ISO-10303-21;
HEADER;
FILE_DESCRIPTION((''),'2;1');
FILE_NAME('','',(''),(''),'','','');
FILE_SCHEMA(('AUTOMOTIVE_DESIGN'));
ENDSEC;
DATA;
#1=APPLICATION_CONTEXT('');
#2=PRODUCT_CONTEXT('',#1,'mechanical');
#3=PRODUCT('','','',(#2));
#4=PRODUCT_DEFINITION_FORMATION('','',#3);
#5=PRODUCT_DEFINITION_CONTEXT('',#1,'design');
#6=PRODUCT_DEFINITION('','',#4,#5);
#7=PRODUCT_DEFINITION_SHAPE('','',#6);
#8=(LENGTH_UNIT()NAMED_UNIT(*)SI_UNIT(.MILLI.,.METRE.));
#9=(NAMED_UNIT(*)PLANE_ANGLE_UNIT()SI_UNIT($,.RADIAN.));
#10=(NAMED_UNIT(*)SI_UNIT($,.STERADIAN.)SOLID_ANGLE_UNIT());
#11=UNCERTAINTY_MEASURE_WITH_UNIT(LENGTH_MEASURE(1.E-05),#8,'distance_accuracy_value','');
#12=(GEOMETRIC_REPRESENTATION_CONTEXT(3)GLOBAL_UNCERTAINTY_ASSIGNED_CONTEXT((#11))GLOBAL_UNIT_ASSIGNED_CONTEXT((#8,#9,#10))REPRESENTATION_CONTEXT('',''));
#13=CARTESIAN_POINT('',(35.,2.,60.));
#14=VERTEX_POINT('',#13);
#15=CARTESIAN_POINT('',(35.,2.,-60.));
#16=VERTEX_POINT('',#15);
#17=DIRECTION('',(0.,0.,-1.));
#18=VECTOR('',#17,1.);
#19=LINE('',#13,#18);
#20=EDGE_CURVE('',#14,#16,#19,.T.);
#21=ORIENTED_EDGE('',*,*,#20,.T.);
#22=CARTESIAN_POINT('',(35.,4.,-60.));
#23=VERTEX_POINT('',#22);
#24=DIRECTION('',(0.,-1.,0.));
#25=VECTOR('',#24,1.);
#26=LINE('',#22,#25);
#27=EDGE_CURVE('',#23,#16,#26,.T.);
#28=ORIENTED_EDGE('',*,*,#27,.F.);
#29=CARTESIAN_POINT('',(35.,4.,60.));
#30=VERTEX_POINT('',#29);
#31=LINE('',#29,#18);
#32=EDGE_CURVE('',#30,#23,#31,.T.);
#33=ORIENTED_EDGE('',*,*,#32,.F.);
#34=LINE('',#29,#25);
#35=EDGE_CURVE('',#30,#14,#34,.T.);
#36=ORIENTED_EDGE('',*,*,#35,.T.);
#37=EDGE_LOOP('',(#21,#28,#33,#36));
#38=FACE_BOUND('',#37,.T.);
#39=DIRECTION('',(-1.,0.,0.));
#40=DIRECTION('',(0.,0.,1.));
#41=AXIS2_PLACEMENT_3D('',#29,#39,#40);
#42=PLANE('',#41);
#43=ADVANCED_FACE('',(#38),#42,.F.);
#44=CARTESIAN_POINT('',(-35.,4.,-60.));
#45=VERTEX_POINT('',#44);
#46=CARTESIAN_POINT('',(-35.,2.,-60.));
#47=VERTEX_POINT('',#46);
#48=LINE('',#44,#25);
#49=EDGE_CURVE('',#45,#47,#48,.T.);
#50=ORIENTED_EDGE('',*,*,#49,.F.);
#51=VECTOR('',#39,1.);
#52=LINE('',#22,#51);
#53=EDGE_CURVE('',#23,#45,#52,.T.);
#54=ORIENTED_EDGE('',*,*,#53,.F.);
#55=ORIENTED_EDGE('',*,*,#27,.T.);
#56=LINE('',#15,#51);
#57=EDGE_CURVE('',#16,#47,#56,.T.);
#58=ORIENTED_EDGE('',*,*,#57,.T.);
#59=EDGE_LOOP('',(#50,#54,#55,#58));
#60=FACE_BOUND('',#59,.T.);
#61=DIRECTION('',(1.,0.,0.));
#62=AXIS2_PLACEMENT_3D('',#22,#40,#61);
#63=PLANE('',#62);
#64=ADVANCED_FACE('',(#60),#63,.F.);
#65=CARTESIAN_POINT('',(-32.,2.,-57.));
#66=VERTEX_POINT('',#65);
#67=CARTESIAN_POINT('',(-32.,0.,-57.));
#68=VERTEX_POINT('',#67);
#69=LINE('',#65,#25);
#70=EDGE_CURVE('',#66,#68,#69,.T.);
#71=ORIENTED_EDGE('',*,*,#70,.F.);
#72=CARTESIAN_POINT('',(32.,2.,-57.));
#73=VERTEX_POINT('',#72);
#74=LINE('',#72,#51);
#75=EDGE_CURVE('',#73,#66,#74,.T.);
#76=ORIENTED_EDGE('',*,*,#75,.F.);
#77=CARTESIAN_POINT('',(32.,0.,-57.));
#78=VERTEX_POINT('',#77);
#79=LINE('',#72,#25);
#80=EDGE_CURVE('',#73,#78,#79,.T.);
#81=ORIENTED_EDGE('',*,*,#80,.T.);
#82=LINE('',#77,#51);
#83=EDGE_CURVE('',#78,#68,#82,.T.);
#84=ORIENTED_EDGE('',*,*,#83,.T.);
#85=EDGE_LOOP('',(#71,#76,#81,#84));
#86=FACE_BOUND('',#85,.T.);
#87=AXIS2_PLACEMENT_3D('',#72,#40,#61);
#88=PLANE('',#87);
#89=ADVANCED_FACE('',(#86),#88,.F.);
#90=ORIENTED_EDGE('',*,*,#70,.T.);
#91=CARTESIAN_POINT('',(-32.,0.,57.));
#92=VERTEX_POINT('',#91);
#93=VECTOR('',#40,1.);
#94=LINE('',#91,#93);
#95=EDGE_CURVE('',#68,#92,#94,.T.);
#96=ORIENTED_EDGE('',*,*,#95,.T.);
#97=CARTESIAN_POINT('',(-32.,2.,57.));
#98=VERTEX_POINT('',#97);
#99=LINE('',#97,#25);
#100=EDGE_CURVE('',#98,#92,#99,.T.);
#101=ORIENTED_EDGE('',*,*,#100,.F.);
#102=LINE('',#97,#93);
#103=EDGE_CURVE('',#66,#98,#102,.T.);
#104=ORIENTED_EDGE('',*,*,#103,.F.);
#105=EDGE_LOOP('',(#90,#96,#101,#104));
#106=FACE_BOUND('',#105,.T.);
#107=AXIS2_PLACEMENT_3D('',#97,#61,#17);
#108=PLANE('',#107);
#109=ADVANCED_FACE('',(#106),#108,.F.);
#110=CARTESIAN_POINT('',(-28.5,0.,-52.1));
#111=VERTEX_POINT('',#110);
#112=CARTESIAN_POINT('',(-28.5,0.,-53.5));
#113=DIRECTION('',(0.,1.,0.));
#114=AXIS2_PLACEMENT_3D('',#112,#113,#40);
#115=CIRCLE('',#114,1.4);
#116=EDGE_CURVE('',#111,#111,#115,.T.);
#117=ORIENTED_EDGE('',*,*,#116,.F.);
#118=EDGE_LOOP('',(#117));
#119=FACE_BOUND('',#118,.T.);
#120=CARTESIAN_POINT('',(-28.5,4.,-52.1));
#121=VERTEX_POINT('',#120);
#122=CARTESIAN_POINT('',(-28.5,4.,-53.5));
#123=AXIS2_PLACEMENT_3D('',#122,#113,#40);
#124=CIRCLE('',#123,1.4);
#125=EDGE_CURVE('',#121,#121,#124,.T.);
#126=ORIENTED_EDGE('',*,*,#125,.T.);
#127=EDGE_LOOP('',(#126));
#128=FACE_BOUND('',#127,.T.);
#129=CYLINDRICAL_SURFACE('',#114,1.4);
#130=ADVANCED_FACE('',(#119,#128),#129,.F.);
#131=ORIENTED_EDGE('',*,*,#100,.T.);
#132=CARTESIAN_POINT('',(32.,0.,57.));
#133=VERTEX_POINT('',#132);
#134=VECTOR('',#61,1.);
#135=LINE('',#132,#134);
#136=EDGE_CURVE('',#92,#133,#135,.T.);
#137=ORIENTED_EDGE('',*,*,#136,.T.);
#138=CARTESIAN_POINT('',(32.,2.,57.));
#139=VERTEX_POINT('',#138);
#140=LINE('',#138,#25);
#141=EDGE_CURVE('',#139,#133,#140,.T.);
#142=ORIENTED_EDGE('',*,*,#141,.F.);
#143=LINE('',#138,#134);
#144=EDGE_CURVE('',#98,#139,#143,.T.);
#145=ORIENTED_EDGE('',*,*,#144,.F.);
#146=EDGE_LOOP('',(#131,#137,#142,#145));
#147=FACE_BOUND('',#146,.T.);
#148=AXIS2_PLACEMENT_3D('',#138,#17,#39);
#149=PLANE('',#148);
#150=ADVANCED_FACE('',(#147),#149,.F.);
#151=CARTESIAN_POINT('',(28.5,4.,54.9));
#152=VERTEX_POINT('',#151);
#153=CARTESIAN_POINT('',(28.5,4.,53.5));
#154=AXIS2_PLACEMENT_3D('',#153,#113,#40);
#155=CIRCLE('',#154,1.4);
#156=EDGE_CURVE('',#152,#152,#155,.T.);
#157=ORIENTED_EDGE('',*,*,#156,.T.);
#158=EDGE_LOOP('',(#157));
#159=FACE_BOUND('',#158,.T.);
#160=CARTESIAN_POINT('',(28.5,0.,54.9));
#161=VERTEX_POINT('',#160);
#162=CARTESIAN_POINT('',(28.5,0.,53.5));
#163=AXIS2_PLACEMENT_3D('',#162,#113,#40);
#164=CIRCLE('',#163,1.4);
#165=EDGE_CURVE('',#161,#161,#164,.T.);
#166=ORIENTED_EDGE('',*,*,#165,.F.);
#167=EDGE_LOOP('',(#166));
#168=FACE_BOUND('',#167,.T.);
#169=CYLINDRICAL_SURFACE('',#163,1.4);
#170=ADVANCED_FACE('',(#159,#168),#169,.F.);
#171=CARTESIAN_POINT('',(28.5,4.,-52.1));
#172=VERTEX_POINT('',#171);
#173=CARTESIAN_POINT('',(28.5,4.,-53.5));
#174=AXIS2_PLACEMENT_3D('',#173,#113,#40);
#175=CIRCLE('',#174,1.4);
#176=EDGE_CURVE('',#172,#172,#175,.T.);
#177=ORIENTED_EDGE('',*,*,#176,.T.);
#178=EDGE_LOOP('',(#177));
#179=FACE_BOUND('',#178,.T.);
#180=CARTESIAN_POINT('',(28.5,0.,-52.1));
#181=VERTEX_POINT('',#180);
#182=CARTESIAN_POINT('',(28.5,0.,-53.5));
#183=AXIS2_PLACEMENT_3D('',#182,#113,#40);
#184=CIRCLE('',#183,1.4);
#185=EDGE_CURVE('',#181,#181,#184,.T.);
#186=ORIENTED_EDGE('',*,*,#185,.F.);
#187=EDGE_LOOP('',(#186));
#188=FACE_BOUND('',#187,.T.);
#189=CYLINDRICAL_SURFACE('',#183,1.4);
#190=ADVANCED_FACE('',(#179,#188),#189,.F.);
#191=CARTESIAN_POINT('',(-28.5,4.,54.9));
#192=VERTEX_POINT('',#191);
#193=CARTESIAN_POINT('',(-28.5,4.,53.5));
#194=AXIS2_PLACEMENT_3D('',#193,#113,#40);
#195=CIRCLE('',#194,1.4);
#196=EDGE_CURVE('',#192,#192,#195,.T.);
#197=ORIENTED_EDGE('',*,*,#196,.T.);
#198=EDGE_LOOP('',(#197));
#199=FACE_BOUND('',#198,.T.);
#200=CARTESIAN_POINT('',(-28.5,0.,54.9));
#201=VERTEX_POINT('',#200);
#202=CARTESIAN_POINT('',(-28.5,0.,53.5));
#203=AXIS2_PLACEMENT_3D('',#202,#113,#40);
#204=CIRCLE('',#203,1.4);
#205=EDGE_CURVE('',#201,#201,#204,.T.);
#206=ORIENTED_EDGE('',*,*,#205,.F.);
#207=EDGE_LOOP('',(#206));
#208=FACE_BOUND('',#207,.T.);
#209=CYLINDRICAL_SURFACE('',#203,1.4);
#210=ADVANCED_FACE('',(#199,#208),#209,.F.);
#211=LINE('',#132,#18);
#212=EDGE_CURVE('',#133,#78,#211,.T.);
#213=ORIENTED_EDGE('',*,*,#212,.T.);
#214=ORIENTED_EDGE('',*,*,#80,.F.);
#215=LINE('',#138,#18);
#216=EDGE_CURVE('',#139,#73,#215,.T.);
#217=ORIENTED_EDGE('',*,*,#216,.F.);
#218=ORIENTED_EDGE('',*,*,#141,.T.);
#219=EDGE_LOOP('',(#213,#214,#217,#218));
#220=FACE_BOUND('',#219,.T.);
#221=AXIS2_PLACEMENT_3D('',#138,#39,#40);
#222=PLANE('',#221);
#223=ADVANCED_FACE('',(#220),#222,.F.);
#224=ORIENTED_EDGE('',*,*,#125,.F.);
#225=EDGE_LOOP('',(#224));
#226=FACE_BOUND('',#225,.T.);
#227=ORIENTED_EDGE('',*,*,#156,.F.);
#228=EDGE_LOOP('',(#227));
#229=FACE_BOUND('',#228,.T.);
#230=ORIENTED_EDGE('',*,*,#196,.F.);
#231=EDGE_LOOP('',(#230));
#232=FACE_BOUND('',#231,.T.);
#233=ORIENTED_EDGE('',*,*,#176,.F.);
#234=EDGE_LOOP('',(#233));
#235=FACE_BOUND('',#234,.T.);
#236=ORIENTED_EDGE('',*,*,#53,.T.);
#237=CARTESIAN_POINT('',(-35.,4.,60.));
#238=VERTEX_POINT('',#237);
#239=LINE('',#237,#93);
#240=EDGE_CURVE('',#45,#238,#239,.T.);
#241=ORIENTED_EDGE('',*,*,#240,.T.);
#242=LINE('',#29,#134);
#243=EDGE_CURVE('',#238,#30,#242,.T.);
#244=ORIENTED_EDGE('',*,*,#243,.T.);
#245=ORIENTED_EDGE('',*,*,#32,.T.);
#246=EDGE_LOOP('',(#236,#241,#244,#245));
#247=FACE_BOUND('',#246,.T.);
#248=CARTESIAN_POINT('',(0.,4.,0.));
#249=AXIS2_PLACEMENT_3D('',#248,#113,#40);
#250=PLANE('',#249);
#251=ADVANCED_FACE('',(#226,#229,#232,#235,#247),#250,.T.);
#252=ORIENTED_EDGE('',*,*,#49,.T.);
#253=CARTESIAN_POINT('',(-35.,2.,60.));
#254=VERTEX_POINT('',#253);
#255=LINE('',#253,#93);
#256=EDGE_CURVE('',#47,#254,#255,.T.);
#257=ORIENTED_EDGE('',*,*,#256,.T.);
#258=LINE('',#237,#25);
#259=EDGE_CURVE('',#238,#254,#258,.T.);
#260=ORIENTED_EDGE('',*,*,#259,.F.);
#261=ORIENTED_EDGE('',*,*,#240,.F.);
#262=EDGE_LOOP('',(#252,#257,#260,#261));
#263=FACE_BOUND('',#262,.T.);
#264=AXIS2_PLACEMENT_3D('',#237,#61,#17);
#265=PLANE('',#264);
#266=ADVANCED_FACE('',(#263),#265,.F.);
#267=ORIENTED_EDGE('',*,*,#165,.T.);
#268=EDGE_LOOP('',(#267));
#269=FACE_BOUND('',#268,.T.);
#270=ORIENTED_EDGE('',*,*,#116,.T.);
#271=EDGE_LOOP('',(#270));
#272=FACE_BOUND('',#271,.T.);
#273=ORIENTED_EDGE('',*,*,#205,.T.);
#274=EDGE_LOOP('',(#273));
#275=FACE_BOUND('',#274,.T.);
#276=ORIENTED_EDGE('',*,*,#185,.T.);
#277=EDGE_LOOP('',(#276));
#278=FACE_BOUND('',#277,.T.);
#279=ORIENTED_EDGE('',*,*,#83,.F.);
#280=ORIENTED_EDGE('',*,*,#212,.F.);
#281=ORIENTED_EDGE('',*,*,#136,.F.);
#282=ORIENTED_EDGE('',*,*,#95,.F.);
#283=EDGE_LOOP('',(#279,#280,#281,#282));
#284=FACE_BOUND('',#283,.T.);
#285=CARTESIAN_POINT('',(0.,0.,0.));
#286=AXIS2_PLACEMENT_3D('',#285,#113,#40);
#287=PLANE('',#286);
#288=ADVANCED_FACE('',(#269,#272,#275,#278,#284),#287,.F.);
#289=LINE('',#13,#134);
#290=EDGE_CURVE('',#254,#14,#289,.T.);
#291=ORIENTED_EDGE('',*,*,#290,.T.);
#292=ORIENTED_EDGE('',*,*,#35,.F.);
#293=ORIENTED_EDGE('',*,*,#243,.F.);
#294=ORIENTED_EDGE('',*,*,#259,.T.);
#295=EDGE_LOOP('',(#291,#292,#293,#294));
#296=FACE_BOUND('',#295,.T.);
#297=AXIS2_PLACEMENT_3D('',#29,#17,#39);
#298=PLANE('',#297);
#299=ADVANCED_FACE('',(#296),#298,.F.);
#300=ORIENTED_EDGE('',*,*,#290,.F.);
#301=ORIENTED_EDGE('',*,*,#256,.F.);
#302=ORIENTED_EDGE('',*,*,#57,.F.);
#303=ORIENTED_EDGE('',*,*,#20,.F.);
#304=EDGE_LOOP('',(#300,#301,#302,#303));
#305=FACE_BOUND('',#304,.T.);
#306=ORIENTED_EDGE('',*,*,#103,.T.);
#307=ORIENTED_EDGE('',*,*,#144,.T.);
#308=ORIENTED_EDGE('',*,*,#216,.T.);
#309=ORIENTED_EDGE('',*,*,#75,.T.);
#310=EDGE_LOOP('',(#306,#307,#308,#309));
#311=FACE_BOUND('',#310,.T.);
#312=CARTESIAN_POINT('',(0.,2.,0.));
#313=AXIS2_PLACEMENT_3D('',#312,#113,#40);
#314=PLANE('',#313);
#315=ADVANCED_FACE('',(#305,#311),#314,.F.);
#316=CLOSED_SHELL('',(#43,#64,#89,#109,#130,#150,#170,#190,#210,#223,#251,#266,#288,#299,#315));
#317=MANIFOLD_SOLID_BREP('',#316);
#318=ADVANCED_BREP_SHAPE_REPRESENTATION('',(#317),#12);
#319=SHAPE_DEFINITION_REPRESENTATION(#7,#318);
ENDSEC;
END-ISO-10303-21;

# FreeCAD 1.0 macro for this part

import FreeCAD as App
import Part
import Sketcher
from FreeCAD import Vector


def add_polygon(sketch, points):
    """Adds a closed chain of lines whose ends are joined by coincident constraints."""
    first, n = sketch.GeometryCount, len(points)
    for a, b in zip(points, points[1:] + points[:1]):
        sketch.addGeometry(Part.LineSegment(App.Vector(*a, 0), App.Vector(*b, 0)), False)
    for i in range(n):
        sketch.addConstraint(Sketcher.Constraint("Coincident", first + i, 2, first + (i + 1) % n, 1))

doc = App.newDocument("Part")
body = doc.addObject("PartDesign::Body", "Body")

# Sketch on XZ plane
sketch1 = body.newObject("Sketcher::SketchObject", "Sketch")
sketch1.AttachmentSupport = (doc.getObject("XZ_Plane"), [""])
sketch1.MapMode = "FlatFace"
add_polygon(sketch1, [(-32, -57), (-32, 57), (32, 57), (32, -57)])  # lines 0-3
sketch1.addConstraint(Sketcher.Constraint("Vertical", 0))
sketch1.addConstraint(Sketcher.Constraint("Horizontal", 1))
sketch1.addConstraint(Sketcher.Constraint("Vertical", 2))
sketch1.addConstraint(Sketcher.Constraint("Horizontal", 3))
sketch1.addConstraint(Sketcher.Constraint("Symmetric", 0, 2, 2, 2, -1, 1))
sketch1.addConstraint(Sketcher.Constraint("DistanceX", 1, 1, 1, 2, 64.0))
sketch1.addConstraint(Sketcher.Constraint("DistanceY", 0, 1, 0, 2, 114.0))
pad1 = body.newObject("PartDesign::Pad", "Pad")
pad1.Profile = sketch1
pad1.Length = 2
pad1.Reversed = True

# Sketch on XZ plane
sketch2 = body.newObject("Sketcher::SketchObject", "Sketch001")
sketch2.AttachmentSupport = (doc.getObject("XZ_Plane"), [""])
sketch2.MapMode = "FlatFace"
sketch2.AttachmentOffset = App.Placement(Vector(0, 0, -2), App.Rotation())
add_polygon(sketch2, [(-35, -60), (-35, 60), (35, 60), (35, -60)])  # lines 0-3
sketch2.addConstraint(Sketcher.Constraint("Vertical", 0))
sketch2.addConstraint(Sketcher.Constraint("Horizontal", 1))
sketch2.addConstraint(Sketcher.Constraint("Vertical", 2))
sketch2.addConstraint(Sketcher.Constraint("Horizontal", 3))
sketch2.addConstraint(Sketcher.Constraint("Symmetric", 0, 2, 2, 2, -1, 1))
sketch2.addConstraint(Sketcher.Constraint("DistanceX", 1, 1, 1, 2, 70.0))
sketch2.addConstraint(Sketcher.Constraint("DistanceY", 0, 1, 0, 2, 120.0))
pad2 = body.newObject("PartDesign::Pad", "Pad001")
pad2.Profile = sketch2
pad2.Length = 2
pad2.Reversed = True

# Sketch on XZ plane
sketch3 = body.newObject("Sketcher::SketchObject", "Sketch002")
sketch3.AttachmentSupport = (doc.getObject("XZ_Plane"), [""])
sketch3.MapMode = "FlatFace"
sketch3.AttachmentOffset = App.Placement(Vector(0, 0, -4), App.Rotation())
sketch3.addGeometry(Part.Circle(Vector(-28.5, -53.5, 0), Vector(0, 0, 1), 1.4), False)
sketch3.addGeometry(Part.Circle(Vector(28.5, -53.5, 0), Vector(0, 0, 1), 1.4), False)
sketch3.addGeometry(Part.Circle(Vector(-28.5, 53.5, 0), Vector(0, 0, 1), 1.4), False)
sketch3.addGeometry(Part.Circle(Vector(28.5, 53.5, 0), Vector(0, 0, 1), 1.4), False)
sketch3.addConstraint(Sketcher.Constraint("Equal", 0, 1))
sketch3.addConstraint(Sketcher.Constraint("Equal", 1, 2))
sketch3.addConstraint(Sketcher.Constraint("Equal", 2, 3))
sketch3.addConstraint(Sketcher.Constraint("Symmetric", 1, 3, 2, 3, -1, 1))
sketch3.addConstraint(Sketcher.Constraint("Symmetric", 0, 3, 3, 3, -1, 1))
sketch3.addConstraint(Sketcher.Constraint("Symmetric", 0, 3, 1, 3, -2))
sketch3.addConstraint(Sketcher.Constraint("Diameter", 0, 2.8))
sketch3.addConstraint(Sketcher.Constraint("DistanceX", 0, 3, 1, 3, 57.0))
sketch3.addConstraint(Sketcher.Constraint("DistanceY", 0, 3, 2, 3, 107.0))
pocket1 = body.newObject("PartDesign::Pocket", "Pocket")
pocket1.Profile = sketch3
pocket1.Type = "ThroughAll"
pocket1.Reversed = True

doc.recompute()
